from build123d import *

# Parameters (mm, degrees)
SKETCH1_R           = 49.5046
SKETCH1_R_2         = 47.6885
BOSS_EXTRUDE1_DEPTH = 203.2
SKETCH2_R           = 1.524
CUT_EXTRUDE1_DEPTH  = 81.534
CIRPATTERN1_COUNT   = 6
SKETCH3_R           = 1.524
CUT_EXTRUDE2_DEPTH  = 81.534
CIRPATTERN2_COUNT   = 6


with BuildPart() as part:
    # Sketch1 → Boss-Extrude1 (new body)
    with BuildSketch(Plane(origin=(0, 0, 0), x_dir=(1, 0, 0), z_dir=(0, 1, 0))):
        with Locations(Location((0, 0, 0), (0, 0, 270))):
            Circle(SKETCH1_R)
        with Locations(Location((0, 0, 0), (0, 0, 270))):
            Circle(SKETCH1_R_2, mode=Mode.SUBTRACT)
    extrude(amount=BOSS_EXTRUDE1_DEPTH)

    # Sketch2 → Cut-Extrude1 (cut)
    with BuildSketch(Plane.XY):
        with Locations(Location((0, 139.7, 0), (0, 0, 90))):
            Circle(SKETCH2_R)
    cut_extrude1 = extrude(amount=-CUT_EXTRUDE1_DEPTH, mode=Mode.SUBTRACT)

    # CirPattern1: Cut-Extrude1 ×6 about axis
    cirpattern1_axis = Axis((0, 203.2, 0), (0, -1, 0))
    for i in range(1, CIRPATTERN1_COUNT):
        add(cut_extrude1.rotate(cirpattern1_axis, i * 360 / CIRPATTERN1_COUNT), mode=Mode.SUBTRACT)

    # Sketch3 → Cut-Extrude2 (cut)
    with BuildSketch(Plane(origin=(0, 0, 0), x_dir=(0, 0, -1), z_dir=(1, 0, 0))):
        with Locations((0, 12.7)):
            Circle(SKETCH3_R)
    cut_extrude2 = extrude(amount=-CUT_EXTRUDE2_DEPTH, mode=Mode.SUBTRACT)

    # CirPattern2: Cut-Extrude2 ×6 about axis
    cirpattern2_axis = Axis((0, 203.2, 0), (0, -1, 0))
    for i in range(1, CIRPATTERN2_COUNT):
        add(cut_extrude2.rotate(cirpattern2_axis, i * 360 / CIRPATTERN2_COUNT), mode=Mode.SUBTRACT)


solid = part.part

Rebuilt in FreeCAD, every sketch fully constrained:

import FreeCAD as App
import Part
import Sketcher
from FreeCAD import Vector
Q = App.Units.Quantity

doc = App.newDocument("Part")
body = doc.addObject("PartDesign::Body", "Body")

sketch1 = body.newObject("Sketcher::SketchObject", "Sketch")
sketch1.AttachmentSupport = (doc.getObject("XZ_Plane"), [""])
sketch1.MapMode = "FlatFace"
sketch1.addGeometry(Part.Circle(Vector(0, 0, 0), Vector(0, 0, 1), 49.5046), False)
sketch1.addGeometry(Part.Circle(Vector(0, 0, 0), Vector(0, 0, 1), 47.6885), False)
sketch1.addConstraint(Sketcher.Constraint("Coincident", 0, 3, -1, 1))
sketch1.addConstraint(Sketcher.Constraint("Coincident", 1, 3, -1, 1))
sketch1.addConstraint(Sketcher.Constraint("Diameter", 0, Q("3.898 in")))
sketch1.addConstraint(Sketcher.Constraint("Diameter", 1, Q("3.755 in")))
pad1 = body.newObject("PartDesign::Pad", "Pad")
pad1.Profile = sketch1
pad1.Length = Q("8 in")
pad1.Reversed = True

sketch2 = body.newObject("Sketcher::SketchObject", "Sketch001")
sketch2.AttachmentSupport = (doc.getObject("XY_Plane"), [""])
sketch2.MapMode = "FlatFace"
sketch2.addGeometry(Part.Circle(Vector(0, 139.7, 0), Vector(0, 0, 1), 1.524), False)
sketch2.addConstraint(Sketcher.Constraint("PointOnObject", 0, 3, -2))
sketch2.addConstraint(Sketcher.Constraint("Diameter", 0, Q("0.12 in")))
sketch2.addConstraint(Sketcher.Constraint("DistanceY", -1, 1, 0, 3, Q("5.5 in")))
pocket1 = body.newObject("PartDesign::Pocket", "Pocket")
pocket1.Profile = sketch2
pocket1.Length = Q("3.21 in")
doc.recompute()

polarpattern = body.newObject("PartDesign::PolarPattern", "PolarPattern")
polarpattern.Originals = [pocket1]
polarpattern.Axis = (doc.getObject("Y_Axis"), [""])
polarpattern.Angle = 360
polarpattern.Occurrences = 6
body.Tip = polarpattern

sketch3 = body.newObject("Sketcher::SketchObject", "Sketch002")
sketch3.AttachmentSupport = (doc.getObject("YZ_Plane"), [""])
sketch3.MapMode = "FlatFace"
sketch3.addGeometry(Part.Circle(Vector(12.7, 0, 0), Vector(0, 0, 1), 1.524), False)
sketch3.addConstraint(Sketcher.Constraint("PointOnObject", 0, 3, -1))
sketch3.addConstraint(Sketcher.Constraint("Diameter", 0, Q("0.12 in")))
sketch3.addConstraint(Sketcher.Constraint("DistanceX", -1, 1, 0, 3, Q("0.5 in")))
pocket2 = body.newObject("PartDesign::Pocket", "Pocket001")
pocket2.Profile = sketch3
pocket2.Length = Q("3.21 in")
doc.recompute()

polarpattern2 = body.newObject("PartDesign::PolarPattern", "PolarPattern001")
polarpattern2.Originals = [pocket2]
polarpattern2.Axis = (doc.getObject("Y_Axis"), [""])
polarpattern2.Angle = 360
polarpattern2.Occurrences = 6
body.Tip = polarpattern2

doc.recompute()
